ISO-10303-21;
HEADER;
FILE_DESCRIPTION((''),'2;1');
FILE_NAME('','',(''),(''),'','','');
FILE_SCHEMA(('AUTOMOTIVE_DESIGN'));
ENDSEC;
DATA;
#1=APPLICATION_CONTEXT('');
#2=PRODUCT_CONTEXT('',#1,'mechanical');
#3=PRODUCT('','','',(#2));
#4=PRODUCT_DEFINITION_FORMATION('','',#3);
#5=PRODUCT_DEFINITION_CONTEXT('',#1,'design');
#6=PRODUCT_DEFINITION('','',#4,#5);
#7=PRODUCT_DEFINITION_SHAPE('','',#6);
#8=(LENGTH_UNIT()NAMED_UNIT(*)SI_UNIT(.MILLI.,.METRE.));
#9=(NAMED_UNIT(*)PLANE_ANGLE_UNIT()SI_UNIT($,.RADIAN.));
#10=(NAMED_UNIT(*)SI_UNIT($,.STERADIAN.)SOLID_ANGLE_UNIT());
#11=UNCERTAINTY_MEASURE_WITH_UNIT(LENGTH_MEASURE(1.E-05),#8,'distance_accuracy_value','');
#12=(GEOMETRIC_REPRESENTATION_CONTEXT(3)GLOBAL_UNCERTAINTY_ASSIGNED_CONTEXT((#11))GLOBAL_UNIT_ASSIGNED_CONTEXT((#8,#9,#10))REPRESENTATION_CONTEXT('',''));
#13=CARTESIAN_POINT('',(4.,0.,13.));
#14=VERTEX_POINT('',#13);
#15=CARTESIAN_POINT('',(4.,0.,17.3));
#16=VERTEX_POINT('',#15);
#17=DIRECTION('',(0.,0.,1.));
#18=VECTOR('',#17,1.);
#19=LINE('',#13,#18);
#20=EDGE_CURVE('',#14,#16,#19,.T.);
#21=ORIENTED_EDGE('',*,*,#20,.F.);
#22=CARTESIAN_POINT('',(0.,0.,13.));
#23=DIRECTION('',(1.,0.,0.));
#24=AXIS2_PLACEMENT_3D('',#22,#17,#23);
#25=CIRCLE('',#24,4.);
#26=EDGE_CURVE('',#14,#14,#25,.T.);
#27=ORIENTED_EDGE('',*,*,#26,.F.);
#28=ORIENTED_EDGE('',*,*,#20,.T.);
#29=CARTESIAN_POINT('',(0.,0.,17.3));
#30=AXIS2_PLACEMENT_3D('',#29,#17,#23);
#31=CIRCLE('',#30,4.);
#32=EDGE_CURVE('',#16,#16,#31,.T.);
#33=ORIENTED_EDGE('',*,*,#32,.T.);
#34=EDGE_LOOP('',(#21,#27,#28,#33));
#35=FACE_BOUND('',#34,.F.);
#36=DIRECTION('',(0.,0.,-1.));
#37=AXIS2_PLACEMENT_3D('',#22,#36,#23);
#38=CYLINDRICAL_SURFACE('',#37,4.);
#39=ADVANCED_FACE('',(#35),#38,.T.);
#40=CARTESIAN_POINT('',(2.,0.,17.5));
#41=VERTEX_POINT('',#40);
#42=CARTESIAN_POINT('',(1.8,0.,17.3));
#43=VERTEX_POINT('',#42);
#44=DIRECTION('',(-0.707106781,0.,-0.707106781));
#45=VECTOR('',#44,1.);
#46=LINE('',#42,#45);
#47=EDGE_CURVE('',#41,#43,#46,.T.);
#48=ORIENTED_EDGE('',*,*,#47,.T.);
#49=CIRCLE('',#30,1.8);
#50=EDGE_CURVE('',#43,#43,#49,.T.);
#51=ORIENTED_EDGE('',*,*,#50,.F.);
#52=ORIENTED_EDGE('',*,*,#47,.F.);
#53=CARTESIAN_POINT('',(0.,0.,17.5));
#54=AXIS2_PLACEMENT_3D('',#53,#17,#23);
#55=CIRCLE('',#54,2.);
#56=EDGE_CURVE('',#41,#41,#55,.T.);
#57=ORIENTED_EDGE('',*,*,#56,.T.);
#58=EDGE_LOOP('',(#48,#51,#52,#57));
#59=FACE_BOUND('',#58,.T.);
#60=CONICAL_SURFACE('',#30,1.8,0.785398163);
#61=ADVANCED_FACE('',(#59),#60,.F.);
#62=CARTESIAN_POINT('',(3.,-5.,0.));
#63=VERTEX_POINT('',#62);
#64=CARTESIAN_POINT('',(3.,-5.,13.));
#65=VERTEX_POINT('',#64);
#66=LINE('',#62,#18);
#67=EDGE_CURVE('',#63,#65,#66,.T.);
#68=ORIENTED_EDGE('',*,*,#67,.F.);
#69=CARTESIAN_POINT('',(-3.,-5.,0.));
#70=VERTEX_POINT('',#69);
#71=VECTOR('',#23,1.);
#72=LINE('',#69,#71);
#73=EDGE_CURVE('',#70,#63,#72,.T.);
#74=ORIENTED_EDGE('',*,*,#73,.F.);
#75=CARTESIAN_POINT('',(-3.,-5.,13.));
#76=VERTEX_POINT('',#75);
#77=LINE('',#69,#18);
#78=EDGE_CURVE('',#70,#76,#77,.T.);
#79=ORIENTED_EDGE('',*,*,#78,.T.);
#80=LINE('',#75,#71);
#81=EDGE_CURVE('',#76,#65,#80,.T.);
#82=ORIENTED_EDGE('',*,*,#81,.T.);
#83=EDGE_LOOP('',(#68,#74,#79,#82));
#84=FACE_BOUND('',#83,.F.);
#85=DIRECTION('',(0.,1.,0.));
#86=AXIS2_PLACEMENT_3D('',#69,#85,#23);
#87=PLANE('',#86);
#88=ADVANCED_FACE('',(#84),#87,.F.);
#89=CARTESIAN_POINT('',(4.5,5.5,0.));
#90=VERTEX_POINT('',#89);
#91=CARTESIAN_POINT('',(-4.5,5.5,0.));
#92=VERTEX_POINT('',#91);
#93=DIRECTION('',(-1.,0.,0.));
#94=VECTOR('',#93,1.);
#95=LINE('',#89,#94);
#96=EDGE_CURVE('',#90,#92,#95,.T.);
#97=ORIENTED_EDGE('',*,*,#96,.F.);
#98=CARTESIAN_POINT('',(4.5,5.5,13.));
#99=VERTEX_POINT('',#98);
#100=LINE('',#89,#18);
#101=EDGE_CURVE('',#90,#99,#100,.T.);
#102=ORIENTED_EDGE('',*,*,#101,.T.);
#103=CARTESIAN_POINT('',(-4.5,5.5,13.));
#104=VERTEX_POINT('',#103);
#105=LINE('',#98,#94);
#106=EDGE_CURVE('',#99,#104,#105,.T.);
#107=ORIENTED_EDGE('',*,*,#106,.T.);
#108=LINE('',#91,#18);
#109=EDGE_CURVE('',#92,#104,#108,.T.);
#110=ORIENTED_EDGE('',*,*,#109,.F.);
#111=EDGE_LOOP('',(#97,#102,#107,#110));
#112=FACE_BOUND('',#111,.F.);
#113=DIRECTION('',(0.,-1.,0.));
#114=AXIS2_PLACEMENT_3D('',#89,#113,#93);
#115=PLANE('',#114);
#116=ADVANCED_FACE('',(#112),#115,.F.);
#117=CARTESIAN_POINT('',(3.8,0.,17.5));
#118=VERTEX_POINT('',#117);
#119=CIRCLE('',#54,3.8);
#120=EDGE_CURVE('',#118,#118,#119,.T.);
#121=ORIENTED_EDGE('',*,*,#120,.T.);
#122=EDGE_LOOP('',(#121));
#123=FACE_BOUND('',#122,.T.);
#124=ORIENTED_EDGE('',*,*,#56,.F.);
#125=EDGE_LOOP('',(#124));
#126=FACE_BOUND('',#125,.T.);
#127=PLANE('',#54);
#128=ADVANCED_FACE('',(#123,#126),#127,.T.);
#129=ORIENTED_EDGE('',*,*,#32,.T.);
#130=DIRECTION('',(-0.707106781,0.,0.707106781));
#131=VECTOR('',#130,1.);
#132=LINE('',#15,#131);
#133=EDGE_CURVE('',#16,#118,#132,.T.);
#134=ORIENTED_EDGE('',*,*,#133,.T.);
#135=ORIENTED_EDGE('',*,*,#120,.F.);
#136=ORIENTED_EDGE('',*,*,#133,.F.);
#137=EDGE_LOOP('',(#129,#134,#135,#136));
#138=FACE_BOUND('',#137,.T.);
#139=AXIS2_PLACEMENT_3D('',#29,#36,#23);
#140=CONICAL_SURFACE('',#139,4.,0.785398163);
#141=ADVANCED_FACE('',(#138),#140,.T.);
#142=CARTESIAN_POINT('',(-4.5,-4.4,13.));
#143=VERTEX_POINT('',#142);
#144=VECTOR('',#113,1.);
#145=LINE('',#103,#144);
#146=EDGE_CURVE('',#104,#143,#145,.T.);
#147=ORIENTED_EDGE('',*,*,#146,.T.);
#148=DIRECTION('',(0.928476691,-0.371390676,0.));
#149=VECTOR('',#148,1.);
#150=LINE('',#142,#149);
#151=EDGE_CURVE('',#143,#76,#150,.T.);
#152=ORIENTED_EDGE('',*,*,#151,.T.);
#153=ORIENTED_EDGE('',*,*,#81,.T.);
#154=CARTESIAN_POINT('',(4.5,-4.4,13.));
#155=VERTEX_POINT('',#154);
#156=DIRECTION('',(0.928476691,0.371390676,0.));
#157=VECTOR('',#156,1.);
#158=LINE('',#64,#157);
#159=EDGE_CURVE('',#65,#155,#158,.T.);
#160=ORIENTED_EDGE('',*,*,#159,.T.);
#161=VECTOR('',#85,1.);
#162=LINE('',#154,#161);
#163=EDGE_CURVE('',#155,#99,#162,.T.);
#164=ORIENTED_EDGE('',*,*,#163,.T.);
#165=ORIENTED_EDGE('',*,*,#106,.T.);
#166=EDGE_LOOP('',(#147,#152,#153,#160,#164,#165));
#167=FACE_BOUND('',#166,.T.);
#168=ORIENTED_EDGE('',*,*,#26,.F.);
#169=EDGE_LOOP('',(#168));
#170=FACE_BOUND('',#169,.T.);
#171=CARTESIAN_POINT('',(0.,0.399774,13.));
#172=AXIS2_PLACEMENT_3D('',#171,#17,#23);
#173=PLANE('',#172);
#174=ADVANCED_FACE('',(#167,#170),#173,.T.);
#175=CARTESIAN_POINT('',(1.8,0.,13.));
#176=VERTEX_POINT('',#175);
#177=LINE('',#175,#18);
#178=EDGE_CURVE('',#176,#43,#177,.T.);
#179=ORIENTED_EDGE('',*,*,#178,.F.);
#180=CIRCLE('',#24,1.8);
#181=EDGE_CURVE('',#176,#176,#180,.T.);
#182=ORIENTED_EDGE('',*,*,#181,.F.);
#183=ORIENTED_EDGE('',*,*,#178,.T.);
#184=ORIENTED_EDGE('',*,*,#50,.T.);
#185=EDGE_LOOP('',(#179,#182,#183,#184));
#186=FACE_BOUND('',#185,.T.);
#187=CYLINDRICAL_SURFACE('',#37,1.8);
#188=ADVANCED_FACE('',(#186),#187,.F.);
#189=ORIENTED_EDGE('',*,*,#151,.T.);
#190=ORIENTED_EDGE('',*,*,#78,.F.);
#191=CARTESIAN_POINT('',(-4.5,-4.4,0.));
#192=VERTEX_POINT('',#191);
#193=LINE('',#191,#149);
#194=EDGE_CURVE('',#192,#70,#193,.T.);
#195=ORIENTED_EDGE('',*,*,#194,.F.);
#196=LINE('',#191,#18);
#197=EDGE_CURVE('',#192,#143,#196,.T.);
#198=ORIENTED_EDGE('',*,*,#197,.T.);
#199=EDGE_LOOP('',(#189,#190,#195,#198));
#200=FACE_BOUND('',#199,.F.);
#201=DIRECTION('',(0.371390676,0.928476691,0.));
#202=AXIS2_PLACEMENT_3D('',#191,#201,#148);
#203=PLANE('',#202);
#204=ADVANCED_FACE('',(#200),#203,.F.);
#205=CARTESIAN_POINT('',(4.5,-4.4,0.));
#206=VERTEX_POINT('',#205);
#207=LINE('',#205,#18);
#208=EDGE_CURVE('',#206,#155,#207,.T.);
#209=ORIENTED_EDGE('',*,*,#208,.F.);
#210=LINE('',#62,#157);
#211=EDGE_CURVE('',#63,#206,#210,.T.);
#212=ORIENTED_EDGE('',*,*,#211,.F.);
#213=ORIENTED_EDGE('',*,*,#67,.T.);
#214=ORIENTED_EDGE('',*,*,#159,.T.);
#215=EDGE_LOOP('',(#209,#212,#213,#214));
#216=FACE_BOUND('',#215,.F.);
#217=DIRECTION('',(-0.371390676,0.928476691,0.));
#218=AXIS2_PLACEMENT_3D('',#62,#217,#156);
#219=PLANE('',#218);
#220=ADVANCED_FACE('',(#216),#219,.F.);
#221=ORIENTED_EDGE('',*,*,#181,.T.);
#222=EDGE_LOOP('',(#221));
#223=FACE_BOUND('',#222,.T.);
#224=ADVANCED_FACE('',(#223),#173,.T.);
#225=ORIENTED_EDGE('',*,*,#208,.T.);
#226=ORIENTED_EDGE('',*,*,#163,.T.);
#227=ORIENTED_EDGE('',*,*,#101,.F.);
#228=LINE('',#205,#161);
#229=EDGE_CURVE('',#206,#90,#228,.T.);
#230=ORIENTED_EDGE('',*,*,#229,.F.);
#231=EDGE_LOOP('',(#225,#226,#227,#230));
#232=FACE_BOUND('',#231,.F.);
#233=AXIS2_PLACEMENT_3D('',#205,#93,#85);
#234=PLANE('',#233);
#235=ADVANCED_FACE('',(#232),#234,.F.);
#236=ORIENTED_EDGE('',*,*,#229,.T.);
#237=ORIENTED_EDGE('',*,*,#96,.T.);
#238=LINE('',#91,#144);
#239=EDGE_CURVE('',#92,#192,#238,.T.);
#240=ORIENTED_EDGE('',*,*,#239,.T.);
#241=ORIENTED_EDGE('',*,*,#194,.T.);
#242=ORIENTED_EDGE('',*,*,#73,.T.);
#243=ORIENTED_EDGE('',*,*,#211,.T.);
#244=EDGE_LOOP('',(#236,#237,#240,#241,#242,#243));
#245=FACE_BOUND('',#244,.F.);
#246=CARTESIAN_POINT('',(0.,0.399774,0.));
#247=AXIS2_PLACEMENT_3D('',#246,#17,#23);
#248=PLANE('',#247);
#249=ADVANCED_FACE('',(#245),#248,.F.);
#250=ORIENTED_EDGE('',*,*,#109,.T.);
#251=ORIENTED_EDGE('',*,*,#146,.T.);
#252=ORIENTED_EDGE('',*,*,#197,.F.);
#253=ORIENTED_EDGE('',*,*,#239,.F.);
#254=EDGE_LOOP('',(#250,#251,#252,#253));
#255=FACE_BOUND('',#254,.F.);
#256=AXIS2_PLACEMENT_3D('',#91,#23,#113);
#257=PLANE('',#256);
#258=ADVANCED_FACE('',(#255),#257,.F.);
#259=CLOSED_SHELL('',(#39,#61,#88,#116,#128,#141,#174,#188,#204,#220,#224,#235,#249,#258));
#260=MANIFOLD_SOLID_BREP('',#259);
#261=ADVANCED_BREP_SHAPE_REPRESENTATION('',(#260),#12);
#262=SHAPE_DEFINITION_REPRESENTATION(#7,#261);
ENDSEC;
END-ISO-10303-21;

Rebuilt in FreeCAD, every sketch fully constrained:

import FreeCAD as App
import Part
import Sketcher
from FreeCAD import Vector


def edges_at(feature, points):
    """Names of the edges that pass closest to the given points."""
    edges = feature.Shape.Edges
    near = lambda p: min(range(len(edges)), key=lambda i: edges[i].distToShape(Part.Vertex(*p))[0])
    return sorted({f"Edge{near(p) + 1}" for p in points})

doc = App.newDocument("Part")
body = doc.addObject("PartDesign::Body", "Body")

sketch1 = body.newObject("Sketcher::SketchObject", "Sketch")
sketch1.AttachmentSupport = (doc.getObject("XY_Plane"), [""])
sketch1.MapMode = "FlatFace"
sketch1.addGeometry([
    Part.LineSegment(Vector(4.5, 5.5, 0), Vector(-4.5, 5.5, 0)),
    Part.LineSegment(Vector(-4.5, 5.5, 0), Vector(-4.5, -4.4, 0)),
    Part.LineSegment(Vector(-4.5, -4.4, 0), Vector(-3, -5, 0)),
    Part.LineSegment(Vector(-3, -5, 0), Vector(3, -5, 0)),
    Part.LineSegment(Vector(3, -5, 0), Vector(4.5, -4.4, 0)),
    Part.LineSegment(Vector(4.5, -4.4, 0), Vector(4.5, 5.5, 0)),
], False)
sketch1.addConstraint([
    Sketcher.Constraint("Coincident", 0, 2, 1, 1),
    Sketcher.Constraint("Coincident", 1, 2, 2, 1),
    Sketcher.Constraint("Coincident", 2, 2, 3, 1),
    Sketcher.Constraint("Coincident", 3, 2, 4, 1),
    Sketcher.Constraint("Coincident", 4, 2, 5, 1),
    Sketcher.Constraint("Coincident", 5, 2, 0, 1),
    Sketcher.Constraint("Horizontal", 0),
    Sketcher.Constraint("Vertical", 1),
    Sketcher.Constraint("Horizontal", 3),
    Sketcher.Constraint("Vertical", 5),
    Sketcher.Constraint("Symmetric", 1, 2, 4, 2, -2),
    Sketcher.Constraint("Equal", 2, 4),
    Sketcher.Constraint("DistanceX", 0, 2, 0, 1, 9.0),
    Sketcher.Constraint("DistanceX", 3, 1, 3, 2, 6.0),
    Sketcher.Constraint("DistanceY", 1, 2, 1, 1, 9.9),
    Sketcher.Constraint("DistanceY", 2, 2, -1, 1, 5.0),
    Sketcher.Constraint("DistanceY", -1, 1, 0, 2, 5.5),
])
pad1 = body.newObject("PartDesign::Pad", "Pad")
pad1.Profile = sketch1
pad1.Length = 13

sketch2 = body.newObject("Sketcher::SketchObject", "Sketch001")
sketch2.AttachmentSupport = (doc.getObject("XY_Plane"), [""])
sketch2.MapMode = "FlatFace"
sketch2.AttachmentOffset = App.Placement(Vector(0, 0, 13), App.Rotation())
sketch2.addGeometry([
    Part.Circle(Vector(0, 0, 0), Vector(0, 0, 1), 4),
    Part.Circle(Vector(0, 0, 0), Vector(0, 0, 1), 1.8),
], False)
sketch2.addConstraint([
    Sketcher.Constraint("Coincident", 0, 3, -1, 1),
    Sketcher.Constraint("Coincident", 1, 3, -1, 1),
    Sketcher.Constraint("Diameter", 0, 8.0),
    Sketcher.Constraint("Diameter", 1, 3.6),
])
pad2 = body.newObject("PartDesign::Pad", "Pad001")
pad2.Profile = sketch2
pad2.Length = 4.5
doc.recompute()

chamfer = body.newObject("PartDesign::Chamfer", "Chamfer")
chamfer.Base = (pad2, edges_at(pad2, [(-4, 0, 17.5), (-1.8, 0, 17.5)]))
chamfer.Size = 0.2

doc.recompute()
